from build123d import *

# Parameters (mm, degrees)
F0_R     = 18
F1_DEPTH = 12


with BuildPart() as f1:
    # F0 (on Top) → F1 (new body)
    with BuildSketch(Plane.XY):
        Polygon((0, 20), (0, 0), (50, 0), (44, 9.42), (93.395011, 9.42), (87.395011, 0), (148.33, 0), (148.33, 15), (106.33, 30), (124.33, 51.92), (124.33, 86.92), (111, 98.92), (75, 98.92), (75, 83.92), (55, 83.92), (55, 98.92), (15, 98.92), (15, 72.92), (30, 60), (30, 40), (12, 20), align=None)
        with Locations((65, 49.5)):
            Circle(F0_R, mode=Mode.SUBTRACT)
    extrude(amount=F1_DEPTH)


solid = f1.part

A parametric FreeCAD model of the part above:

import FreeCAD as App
import Part
import Sketcher
Q = App.Units.Quantity


def add_polygon(sketch, points):
    """Adds a closed chain of lines whose ends are joined by coincident constraints."""
    first, n = sketch.GeometryCount, len(points)
    for a, b in zip(points, points[1:] + points[:1]):
        sketch.addGeometry(Part.LineSegment(App.Vector(*a, 0), App.Vector(*b, 0)), False)
    for i in range(n):
        sketch.addConstraint(Sketcher.Constraint("Coincident", first + i, 2, first + (i + 1) % n, 1))

doc = App.newDocument("Part")
params = doc.addObject("Spreadsheet::Sheet", "Params")
for row, (alias, value) in enumerate([
    ("sketch1_diameter", "36 mm"),
    ("sketch1_width", "50 mm"),
    ("sketch1_width2", "36 mm"),
    ("sketch1_width3", "20 mm"),
    ("sketch1_width4", "40 mm"),
    ("pad1_length", "12 mm"),
], start=1):
    params.set(f"A{row}", alias)
    params.set(f"B{row}", "=" + value)
    params.setAlias(f"B{row}", alias)

body = doc.addObject("PartDesign::Body", "Body")

sketch1 = body.newObject("Sketcher::SketchObject", "Sketch")
sketch1.AttachmentSupport = (doc.getObject("XY_Plane"), [""])
sketch1.MapMode = "FlatFace"
add_polygon(sketch1, [(0, 20), (0, 0), (50, 0), (44, 9), (93, 9), (87, 0), (148, 0), (148, 15), (106, 30), (124, 52), (124, 87), (111, 99), (75, 99), (75, 84), (55, 84), (55, 99), (15, 99), (15, 73), (30, 60), (30, 40), (12, 20)])
sketch1.addGeometry(Part.Circle(App.Vector(65, 50, 0), App.Vector(0, 0, 1), 18), False)
sketch1.addConstraint(Sketcher.Constraint("Vertical", 0))
sketch1.addConstraint(Sketcher.Constraint("Horizontal", 1))
sketch1.addConstraint(Sketcher.Constraint("Horizontal", 3))
sketch1.addConstraint(Sketcher.Constraint("Horizontal", 5))
sketch1.addConstraint(Sketcher.Constraint("Vertical", 6))
sketch1.addConstraint(Sketcher.Constraint("Vertical", 9))
sketch1.addConstraint(Sketcher.Constraint("Horizontal", 11))
sketch1.addConstraint(Sketcher.Constraint("Vertical", 12))
sketch1.addConstraint(Sketcher.Constraint("Horizontal", 13))
sketch1.addConstraint(Sketcher.Constraint("Vertical", 14))
sketch1.addConstraint(Sketcher.Constraint("Horizontal", 15))
sketch1.addConstraint(Sketcher.Constraint("Vertical", 16))
sketch1.addConstraint(Sketcher.Constraint("Vertical", 18))
sketch1.addConstraint(Sketcher.Constraint("Horizontal", 20))
sketch1.addConstraint(Sketcher.Constraint("Coincident", 0, 2, -1, 1))
sketch1.addConstraint(Sketcher.Constraint("PointOnObject", 4, 2, -1))
sketch1.addConstraint(Sketcher.Constraint("Horizontal", 11, 2, 14, 2))
sketch1.addConstraint(Sketcher.Constraint("Equal", 13, 0))
sketch1.addConstraint(Sketcher.Constraint("Equal", 6, 12))
sketch1.addConstraint(Sketcher.Constraint("Equal", 0, 18))
sketch1.addConstraint(Sketcher.Constraint("Equal", 2, 4))
sketch1.addConstraint(Sketcher.Constraint("Diameter", 21, Q("36 mm")))
sketch1.addConstraint(Sketcher.Constraint("DistanceX", 1, 1, 1, 2, Q("50 mm")))
sketch1.addConstraint(Sketcher.Constraint("DistanceX", 11, 2, 11, 1, Q("36 mm")))
sketch1.addConstraint(Sketcher.Constraint("DistanceX", 13, 2, 13, 1, Q("20 mm")))
sketch1.addConstraint(Sketcher.Constraint("DistanceX", 15, 2, 15, 1, Q("40 mm")))
sketch1.addConstraint(Sketcher.Constraint("DistanceX", 20, 2, 20, 1, Q("12 mm")))
sketch1.addConstraint(Sketcher.Constraint("DistanceY", 6, 1, 6, 2, Q("15 mm")))
sketch1.addConstraint(Sketcher.Constraint("DistanceY", 9, 1, 9, 2, Q("35 mm")))
sketch1.addConstraint(Sketcher.Constraint("DistanceY", 16, 2, 16, 1, Q("26 mm")))
sketch1.addConstraint(Sketcher.Constraint("DistanceX", -1, 1, 21, 3, Q("65 mm")))
sketch1.addConstraint(Sketcher.Constraint("DistanceX", -1, 1, 2, 2, Q("44 mm")))
sketch1.addConstraint(Sketcher.Constraint("DistanceY", -1, 1, 7, 2, Q("30 mm")))
sketch1.addConstraint(Sketcher.Constraint("DistanceX", -1, 1, 10, 2, Q("111 mm")))
sketch1.addConstraint(Sketcher.Constraint("DistanceX", -1, 1, 17, 2, Q("30 mm")))
sketch1.addConstraint(Sketcher.Constraint("DistanceY", -1, 1, 17, 2, Q("60 mm")))
sketch1.addConstraint(Sketcher.Constraint("DistanceX", 7, 2, 6, 2, Q("42 mm")))
sketch1.addConstraint(Sketcher.Constraint("DistanceX", 7, 2, 8, 2, Q("18 mm")))
sketch1.addConstraint(Sketcher.Constraint("DistanceY", 9, 2, 10, 2, Q("12 mm")))
sketch1.addConstraint(Sketcher.Constraint("DistanceY", -1, 1, 21, 3, Q("49.5 mm")))
sketch1.addConstraint(Sketcher.Constraint("DistanceY", 3, 2, 8, 2, Q("42.5 mm")))
sketch1.addConstraint(Sketcher.Constraint("DistanceY", -1, 1, 2, 2, Q("9.42 mm")))
sketch1.addConstraint(Sketcher.Constraint("DistanceX", -1, 1, 5, 2, Q("148.33 mm")))
sketch1.addConstraint(Sketcher.Constraint("DistanceX", 3, 1, 3, 2, Q("49.395011 mm")))
sketch1.setExpression("Constraints[42]", "Params.sketch1_diameter")
sketch1.setExpression("Constraints[43]", "Params.sketch1_width")
sketch1.setExpression("Constraints[44]", "Params.sketch1_width2")
sketch1.setExpression("Constraints[45]", "Params.sketch1_width3")
sketch1.setExpression("Constraints[46]", "Params.sketch1_width4")
pad1 = body.newObject("PartDesign::Pad", "Pad")
pad1.Profile = sketch1
pad1.setExpression("Length", "Params.pad1_length")

doc.recompute()
